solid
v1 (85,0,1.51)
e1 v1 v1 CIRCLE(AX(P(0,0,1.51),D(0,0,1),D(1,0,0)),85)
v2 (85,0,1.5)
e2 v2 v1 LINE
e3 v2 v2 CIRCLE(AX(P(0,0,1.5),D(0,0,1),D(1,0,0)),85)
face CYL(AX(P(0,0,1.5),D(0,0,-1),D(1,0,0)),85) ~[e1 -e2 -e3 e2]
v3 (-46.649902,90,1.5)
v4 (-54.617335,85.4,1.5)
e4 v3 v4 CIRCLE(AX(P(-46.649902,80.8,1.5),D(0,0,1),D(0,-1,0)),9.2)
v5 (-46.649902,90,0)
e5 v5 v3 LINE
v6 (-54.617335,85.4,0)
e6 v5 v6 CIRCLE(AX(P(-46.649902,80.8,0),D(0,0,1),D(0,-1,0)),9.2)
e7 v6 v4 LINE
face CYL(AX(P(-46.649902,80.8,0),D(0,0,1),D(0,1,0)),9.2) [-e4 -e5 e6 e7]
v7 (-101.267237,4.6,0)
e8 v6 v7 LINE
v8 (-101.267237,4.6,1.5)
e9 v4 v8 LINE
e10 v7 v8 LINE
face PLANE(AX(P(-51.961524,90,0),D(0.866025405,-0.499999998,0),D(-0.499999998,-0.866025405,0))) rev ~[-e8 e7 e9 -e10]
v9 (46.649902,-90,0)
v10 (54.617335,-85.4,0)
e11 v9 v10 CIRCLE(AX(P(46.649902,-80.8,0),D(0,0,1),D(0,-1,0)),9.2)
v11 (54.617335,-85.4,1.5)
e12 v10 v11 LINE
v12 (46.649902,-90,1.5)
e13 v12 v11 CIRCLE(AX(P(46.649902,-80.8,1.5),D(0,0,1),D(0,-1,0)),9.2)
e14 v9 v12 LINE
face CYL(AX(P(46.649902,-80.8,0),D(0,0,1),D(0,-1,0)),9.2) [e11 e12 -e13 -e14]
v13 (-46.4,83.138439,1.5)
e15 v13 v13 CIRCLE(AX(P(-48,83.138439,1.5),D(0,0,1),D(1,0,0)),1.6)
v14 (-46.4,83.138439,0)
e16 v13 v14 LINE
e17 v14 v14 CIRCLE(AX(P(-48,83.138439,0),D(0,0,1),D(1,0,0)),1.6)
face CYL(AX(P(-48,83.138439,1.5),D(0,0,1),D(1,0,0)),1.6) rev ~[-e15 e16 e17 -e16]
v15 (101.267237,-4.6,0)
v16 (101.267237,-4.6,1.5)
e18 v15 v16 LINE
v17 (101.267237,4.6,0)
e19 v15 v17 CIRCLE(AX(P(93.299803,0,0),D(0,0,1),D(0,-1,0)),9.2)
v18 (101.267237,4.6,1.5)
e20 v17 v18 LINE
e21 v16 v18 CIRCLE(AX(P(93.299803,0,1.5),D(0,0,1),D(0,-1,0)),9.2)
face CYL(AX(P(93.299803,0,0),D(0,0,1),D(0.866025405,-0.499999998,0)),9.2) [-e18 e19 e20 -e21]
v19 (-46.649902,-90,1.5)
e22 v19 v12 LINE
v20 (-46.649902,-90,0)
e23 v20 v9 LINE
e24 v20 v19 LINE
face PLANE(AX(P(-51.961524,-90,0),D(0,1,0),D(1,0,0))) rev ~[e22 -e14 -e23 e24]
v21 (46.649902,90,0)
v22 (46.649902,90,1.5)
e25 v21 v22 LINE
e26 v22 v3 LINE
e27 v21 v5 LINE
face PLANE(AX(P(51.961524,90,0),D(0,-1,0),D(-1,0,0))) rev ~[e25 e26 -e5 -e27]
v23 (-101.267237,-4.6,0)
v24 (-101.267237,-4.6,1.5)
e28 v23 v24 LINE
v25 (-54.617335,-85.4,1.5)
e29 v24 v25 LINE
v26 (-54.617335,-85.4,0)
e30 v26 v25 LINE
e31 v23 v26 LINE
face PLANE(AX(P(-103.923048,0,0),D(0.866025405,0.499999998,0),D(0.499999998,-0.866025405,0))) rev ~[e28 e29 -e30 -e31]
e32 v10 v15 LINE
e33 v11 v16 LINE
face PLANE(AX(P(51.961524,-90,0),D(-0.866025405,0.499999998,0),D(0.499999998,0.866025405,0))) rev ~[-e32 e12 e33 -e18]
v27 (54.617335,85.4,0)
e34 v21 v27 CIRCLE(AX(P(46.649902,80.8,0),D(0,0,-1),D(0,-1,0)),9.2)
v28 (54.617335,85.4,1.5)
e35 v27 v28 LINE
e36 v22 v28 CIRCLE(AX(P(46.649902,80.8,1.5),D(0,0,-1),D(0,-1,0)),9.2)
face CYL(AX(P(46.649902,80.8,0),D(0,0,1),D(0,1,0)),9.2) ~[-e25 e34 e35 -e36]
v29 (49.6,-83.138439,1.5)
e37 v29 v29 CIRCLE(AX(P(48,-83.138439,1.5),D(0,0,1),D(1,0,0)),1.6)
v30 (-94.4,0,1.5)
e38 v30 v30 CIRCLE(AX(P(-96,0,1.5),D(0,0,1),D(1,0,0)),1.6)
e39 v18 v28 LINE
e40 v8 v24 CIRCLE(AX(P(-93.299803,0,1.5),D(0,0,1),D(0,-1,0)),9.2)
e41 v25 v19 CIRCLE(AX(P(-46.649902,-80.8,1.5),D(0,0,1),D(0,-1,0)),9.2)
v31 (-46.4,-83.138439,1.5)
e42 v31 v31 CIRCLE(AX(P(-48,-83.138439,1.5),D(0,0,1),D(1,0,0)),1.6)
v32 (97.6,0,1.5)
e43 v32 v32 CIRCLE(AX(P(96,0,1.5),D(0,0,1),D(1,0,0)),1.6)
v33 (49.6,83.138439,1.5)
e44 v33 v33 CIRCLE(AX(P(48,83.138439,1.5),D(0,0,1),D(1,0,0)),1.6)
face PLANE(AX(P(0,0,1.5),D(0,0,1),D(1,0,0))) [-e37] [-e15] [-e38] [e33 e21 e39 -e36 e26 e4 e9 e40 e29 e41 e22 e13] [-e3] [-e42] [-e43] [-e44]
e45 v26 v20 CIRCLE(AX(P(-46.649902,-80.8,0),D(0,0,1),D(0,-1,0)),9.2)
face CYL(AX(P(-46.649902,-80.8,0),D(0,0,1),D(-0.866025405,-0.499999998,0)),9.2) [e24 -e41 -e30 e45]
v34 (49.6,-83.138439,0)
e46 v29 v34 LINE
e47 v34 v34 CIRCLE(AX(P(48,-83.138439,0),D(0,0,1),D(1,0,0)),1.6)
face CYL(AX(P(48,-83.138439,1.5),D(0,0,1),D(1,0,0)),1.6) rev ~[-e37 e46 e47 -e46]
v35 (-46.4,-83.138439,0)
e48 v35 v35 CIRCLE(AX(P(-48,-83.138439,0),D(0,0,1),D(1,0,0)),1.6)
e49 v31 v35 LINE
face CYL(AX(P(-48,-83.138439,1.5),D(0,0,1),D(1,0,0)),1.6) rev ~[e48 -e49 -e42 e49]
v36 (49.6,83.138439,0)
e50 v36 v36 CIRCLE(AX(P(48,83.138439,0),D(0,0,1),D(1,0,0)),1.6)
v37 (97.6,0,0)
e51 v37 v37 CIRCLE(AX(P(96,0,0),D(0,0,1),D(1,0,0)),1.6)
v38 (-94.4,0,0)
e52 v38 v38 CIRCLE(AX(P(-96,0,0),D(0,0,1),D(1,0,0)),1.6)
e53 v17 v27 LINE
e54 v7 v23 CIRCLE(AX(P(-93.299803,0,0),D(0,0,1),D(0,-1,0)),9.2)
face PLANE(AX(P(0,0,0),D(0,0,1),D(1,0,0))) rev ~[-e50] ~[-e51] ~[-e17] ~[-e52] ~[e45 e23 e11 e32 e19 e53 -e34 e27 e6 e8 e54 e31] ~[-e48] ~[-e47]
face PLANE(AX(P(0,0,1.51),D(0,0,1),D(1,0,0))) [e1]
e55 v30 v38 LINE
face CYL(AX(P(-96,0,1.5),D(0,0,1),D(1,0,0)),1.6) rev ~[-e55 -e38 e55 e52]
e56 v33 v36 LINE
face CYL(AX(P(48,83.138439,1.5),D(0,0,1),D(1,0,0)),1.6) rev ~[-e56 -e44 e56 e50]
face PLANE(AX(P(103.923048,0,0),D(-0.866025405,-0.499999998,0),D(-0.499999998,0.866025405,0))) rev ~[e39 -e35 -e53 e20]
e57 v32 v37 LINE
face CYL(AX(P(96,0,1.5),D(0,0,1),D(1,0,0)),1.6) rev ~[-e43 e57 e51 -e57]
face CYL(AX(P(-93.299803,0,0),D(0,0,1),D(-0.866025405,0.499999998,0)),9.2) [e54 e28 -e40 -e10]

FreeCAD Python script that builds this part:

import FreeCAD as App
import Part
import Sketcher

V = App.Vector
Q = App.Units.Quantity


def edges_at(feature, points):
    """Names of the edges that pass closest to the given points."""
    edges = feature.Shape.Edges
    near = lambda p: min(range(len(edges)), key=lambda i: edges[i].distToShape(Part.Vertex(*p))[0])
    return sorted({f"Edge{near(p) + 1}" for p in points})


def add_polygon(sketch, points):
    """Adds a closed chain of lines whose ends are joined by coincident constraints."""
    first, n = sketch.GeometryCount, len(points)
    for a, b in zip(points, points[1:] + points[:1]):
        sketch.addGeometry(Part.LineSegment(App.Vector(*a, 0), App.Vector(*b, 0)), False)
    for i in range(n):
        sketch.addConstraint(Sketcher.Constraint("Coincident", first + i, 2, first + (i + 1) % n, 1))

doc = App.newDocument("Part")
body = doc.addObject("PartDesign::Body", "Body")

# Sketch on XY plane
sketch1 = body.newObject("Sketcher::SketchObject", "Sketch")
sketch1.AttachmentSupport = (doc.getObject("XY_Plane"), [""])
sketch1.MapMode = "FlatFace"
add_polygon(sketch1, [(52, 90), (-52, 90), (-104, 0), (-52, -90), (52, -90), (104, 0)])  # lines 0-5
sketch1.addConstraint(Sketcher.Constraint("Horizontal", 0))
sketch1.addConstraint(Sketcher.Constraint("Horizontal", 3))
sketch1.addConstraint(Sketcher.Constraint("Symmetric", 0, 2, 3, 2, -1, 1))
sketch1.addConstraint(Sketcher.Constraint("Symmetric", 1, 2, 4, 2, -1, 1))
sketch1.addConstraint(Sketcher.Constraint("PointOnObject", 1, 2, -1))
sketch1.addConstraint(Sketcher.Constraint("Parallel", 2, 5))
sketch1.addConstraint(Sketcher.Constraint("Vertical", 0, 2, 2, 2))
sketch1.addConstraint(Sketcher.Constraint("Angle", 1, Q("-120 deg")))
sketch1.addConstraint(Sketcher.Constraint("DistanceY", -1, 1, 0, 2, 90.0))
sketch1.addConstraint(Sketcher.Constraint("DistanceX", 0, 2, 0, 1, 103.923048))
pad1 = body.newObject("PartDesign::Pad", "Pad")
pad1.Profile = sketch1
pad1.Length = 1.5
doc.recompute()

fillet = body.newObject("PartDesign::Fillet", "Fillet")
fillet.Base = (pad1, edges_at(pad1, [
    (-103.923, 0, 0.75),
    (-51.962, 90, 0.75),
    (51.962, 90, 0.75),
    (103.923, 0, 0.75),
    (51.962, -90, 0.75),
    (-51.962, -90, 0.75),
]))
fillet.Radius = 9.2

# Sketch on XY plane
sketch2 = body.newObject("Sketcher::SketchObject", "Sketch001")
sketch2.AttachmentSupport = (doc.getObject("XY_Plane"), [""])
sketch2.MapMode = "FlatFace"
sketch2.AttachmentOffset = App.Placement(V(0, 0, 1.5), App.Rotation())
sketch2.addGeometry(Part.Circle(V(0, 0, 0), V(0, 0, 1), 85), False)
sketch2.addConstraint(Sketcher.Constraint("Coincident", 0, 3, -1, 1))
sketch2.addConstraint(Sketcher.Constraint("Diameter", 0, 170.0))
pad2 = body.newObject("PartDesign::Pad", "Pad001")
pad2.Profile = sketch2
pad2.Length = 0.01

# Sketch on XY plane
sketch3 = body.newObject("Sketcher::SketchObject", "Sketch002")
sketch3.AttachmentSupport = (doc.getObject("XY_Plane"), [""])
sketch3.MapMode = "FlatFace"
sketch3.AttachmentOffset = App.Placement(V(0, 0, 1.5), App.Rotation())
sketch3.addGeometry(Part.Circle(V(96, 0, 0), V(0, 0, 1), 1.6), False)
sketch3.addGeometry(Part.Circle(V(48, 83.1, 0), V(0, 0, 1), 1.6), False)
sketch3.addGeometry(Part.Circle(V(-48, 83.1, 0), V(0, 0, 1), 1.6), False)
sketch3.addGeometry(Part.Circle(V(-96, 0, 0), V(0, 0, 1), 1.6), False)
sketch3.addGeometry(Part.Circle(V(-48, -83.1, 0), V(0, 0, 1), 1.6), False)
sketch3.addGeometry(Part.Circle(V(48, -83.1, 0), V(0, 0, 1), 1.6), False)
sketch3.addConstraint(Sketcher.Constraint("Equal", 0, 1))
sketch3.addConstraint(Sketcher.Constraint("Equal", 1, 2))
sketch3.addConstraint(Sketcher.Constraint("Equal", 2, 3))
sketch3.addConstraint(Sketcher.Constraint("Equal", 3, 4))
sketch3.addConstraint(Sketcher.Constraint("Equal", 4, 5))
sketch3.addConstraint(Sketcher.Constraint("Symmetric", 0, 3, 3, 3, -1, 1))
sketch3.addConstraint(Sketcher.Constraint("Symmetric", 1, 3, 4, 3, -1, 1))
sketch3.addConstraint(Sketcher.Constraint("Symmetric", 2, 3, 5, 3, -1, 1))
sketch3.addConstraint(Sketcher.Constraint("Symmetric", 1, 3, 2, 3, -2))
sketch3.addConstraint(Sketcher.Constraint("PointOnObject", 0, 3, -1))
sketch3.addConstraint(Sketcher.Constraint("Diameter", 0, 3.2))
sketch3.addConstraint(Sketcher.Constraint("DistanceX", -1, 1, 0, 3, 96.0))
sketch3.addConstraint(Sketcher.Constraint("DistanceX", -1, 1, 1, 3, 48.0))
sketch3.addConstraint(Sketcher.Constraint("DistanceY", -1, 1, 1, 3, 83.138439))
pocket1 = body.newObject("PartDesign::Pocket", "Pocket")
pocket1.Profile = sketch3
pocket1.Type = "ThroughAll"

doc.recompute()
